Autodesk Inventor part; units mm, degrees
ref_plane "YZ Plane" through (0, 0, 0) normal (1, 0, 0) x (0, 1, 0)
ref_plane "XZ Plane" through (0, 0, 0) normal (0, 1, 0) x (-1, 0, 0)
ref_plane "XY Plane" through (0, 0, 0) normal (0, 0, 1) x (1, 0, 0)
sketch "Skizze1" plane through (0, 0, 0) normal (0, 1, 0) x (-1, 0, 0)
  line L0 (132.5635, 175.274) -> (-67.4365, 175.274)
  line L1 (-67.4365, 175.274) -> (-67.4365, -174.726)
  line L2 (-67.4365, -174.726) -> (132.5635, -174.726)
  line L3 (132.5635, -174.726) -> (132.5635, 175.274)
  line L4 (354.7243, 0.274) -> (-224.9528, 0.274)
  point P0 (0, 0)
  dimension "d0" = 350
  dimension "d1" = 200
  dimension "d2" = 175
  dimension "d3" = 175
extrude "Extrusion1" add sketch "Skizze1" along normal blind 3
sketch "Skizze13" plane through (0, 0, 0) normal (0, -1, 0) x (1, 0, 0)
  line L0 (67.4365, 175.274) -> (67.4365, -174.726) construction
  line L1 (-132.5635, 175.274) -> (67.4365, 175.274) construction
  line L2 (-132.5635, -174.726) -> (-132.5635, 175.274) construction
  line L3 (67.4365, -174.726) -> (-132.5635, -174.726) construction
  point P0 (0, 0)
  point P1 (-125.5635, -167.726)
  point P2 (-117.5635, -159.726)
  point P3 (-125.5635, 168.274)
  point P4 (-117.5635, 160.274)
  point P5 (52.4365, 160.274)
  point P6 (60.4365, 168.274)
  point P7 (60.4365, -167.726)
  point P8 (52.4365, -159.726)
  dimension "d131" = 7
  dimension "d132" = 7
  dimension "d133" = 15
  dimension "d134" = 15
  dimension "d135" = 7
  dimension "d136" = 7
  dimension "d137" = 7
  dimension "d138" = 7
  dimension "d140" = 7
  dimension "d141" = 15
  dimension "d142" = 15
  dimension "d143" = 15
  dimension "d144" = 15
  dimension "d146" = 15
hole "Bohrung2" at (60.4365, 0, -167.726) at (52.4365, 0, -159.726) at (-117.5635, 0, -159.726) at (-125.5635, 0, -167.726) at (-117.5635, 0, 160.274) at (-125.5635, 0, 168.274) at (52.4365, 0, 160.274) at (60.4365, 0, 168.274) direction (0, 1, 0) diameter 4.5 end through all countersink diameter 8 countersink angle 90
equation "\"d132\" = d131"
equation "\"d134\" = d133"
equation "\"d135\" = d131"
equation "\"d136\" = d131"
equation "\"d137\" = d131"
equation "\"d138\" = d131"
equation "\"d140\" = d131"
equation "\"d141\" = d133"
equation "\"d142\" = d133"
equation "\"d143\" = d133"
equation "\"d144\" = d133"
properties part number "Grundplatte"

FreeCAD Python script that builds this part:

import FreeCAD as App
import Part
import Sketcher
from FreeCAD import Vector
Q = App.Units.Quantity


def add_polygon(sketch, points):
    """Adds a closed chain of lines whose ends are joined by coincident constraints."""
    first, n = sketch.GeometryCount, len(points)
    for a, b in zip(points, points[1:] + points[:1]):
        sketch.addGeometry(Part.LineSegment(App.Vector(*a, 0), App.Vector(*b, 0)), False)
    for i in range(n):
        sketch.addConstraint(Sketcher.Constraint("Coincident", first + i, 2, first + (i + 1) % n, 1))

doc = App.newDocument("Part")
body = doc.addObject("PartDesign::Body", "Body")

sketch1 = body.newObject("Sketcher::SketchObject", "Sketch")
sketch1.AttachmentSupport = (doc.getObject("XZ_Plane"), [""])
sketch1.MapMode = "FlatFace"
add_polygon(sketch1, [(-132.5635, 175.274), (67.4365, 175.274), (67.4365, -174.726), (-132.5635, -174.726)])
sketch1.addConstraint([
    Sketcher.Constraint("Horizontal", 0),
    Sketcher.Constraint("Vertical", 1),
    Sketcher.Constraint("Horizontal", 2),
    Sketcher.Constraint("Vertical", 3),
    Sketcher.Constraint("DistanceX", 0, 1, 0, 2, Q("200 mm")),
    Sketcher.Constraint("DistanceY", 1, 2, 1, 1, Q("350 mm")),
    Sketcher.Constraint("DistanceY", -1, 1, 0, 2, Q("175.274 mm")),
    Sketcher.Constraint("DistanceX", -1, 1, 0, 2, Q("67.4365 mm")),
])
pad1 = body.newObject("PartDesign::Pad", "Pad")
pad1.Profile = sketch1
pad1.Length = 3
pad1.Reversed = True

sketch2 = body.newObject("Sketcher::SketchObject", "Sketch001")
sketch2.AttachmentSupport = (doc.getObject("XZ_Plane"), [""])
sketch2.MapMode = "FlatFace"
sketch2.addGeometry([
    Part.Circle(Vector(60.4365, -167.726, 0), Vector(0, 0, 1), 2.25),
    Part.Circle(Vector(52.4365, -159.726, 0), Vector(0, 0, 1), 2.25),
    Part.Circle(Vector(-117.5635, -159.726, 0), Vector(0, 0, 1), 2.25),
    Part.Circle(Vector(-125.5635, -167.726, 0), Vector(0, 0, 1), 2.25),
    Part.Circle(Vector(-117.5635, 160.274, 0), Vector(0, 0, 1), 2.25),
    Part.Circle(Vector(-125.5635, 168.274, 0), Vector(0, 0, 1), 2.25),
    Part.Circle(Vector(52.4365, 160.274, 0), Vector(0, 0, 1), 2.25),
    Part.Circle(Vector(60.4365, 168.274, 0), Vector(0, 0, 1), 2.25),
], False)
sketch2.addConstraint([
    Sketcher.Constraint("Equal", 0, 1),
    Sketcher.Constraint("Equal", 1, 2),
    Sketcher.Constraint("Equal", 2, 3),
    Sketcher.Constraint("Equal", 3, 4),
    Sketcher.Constraint("Equal", 4, 5),
    Sketcher.Constraint("Equal", 5, 6),
    Sketcher.Constraint("Equal", 6, 7),
    Sketcher.Constraint("Horizontal", 1, 3, 2, 3),
    Sketcher.Constraint("Horizontal", 0, 3, 3, 3),
    Sketcher.Constraint("Horizontal", 4, 3, 6, 3),
    Sketcher.Constraint("Horizontal", 5, 3, 7, 3),
    Sketcher.Constraint("Vertical", 2, 3, 4, 3),
    Sketcher.Constraint("Vertical", 3, 3, 5, 3),
    Sketcher.Constraint("Vertical", 1, 3, 6, 3),
    Sketcher.Constraint("Vertical", 0, 3, 7, 3),
    Sketcher.Constraint("Diameter", 0, Q("4.5 mm")),
    Sketcher.Constraint("DistanceX", 1, 3, 0, 3, Q("8 mm")),
    Sketcher.Constraint("DistanceY", 0, 3, 1, 3, Q("8 mm")),
    Sketcher.Constraint("DistanceX", 2, 3, 1, 3, Q("170 mm")),
    Sketcher.Constraint("DistanceX", 3, 3, 2, 3, Q("8 mm")),
    Sketcher.Constraint("DistanceY", 2, 3, 4, 3, Q("320 mm")),
    Sketcher.Constraint("DistanceY", 4, 3, 5, 3, Q("8 mm")),
    Sketcher.Constraint("DistanceY", 0, 3, -1, 1, Q("167.726 mm")),
    Sketcher.Constraint("DistanceX", -1, 1, 0, 3, Q("60.4365 mm")),
])
doc.recompute()
hole = body.newObject("PartDesign::Hole", "Hole")
hole.Profile = sketch2
hole.ThreadType = "None"
hole.Diameter = 4.5
hole.DepthType = "ThroughAll"
hole.HoleCutType = "Countersink"
hole.HoleCutDiameter = 8
hole.HoleCutCountersinkAngle = 90

doc.recompute()
